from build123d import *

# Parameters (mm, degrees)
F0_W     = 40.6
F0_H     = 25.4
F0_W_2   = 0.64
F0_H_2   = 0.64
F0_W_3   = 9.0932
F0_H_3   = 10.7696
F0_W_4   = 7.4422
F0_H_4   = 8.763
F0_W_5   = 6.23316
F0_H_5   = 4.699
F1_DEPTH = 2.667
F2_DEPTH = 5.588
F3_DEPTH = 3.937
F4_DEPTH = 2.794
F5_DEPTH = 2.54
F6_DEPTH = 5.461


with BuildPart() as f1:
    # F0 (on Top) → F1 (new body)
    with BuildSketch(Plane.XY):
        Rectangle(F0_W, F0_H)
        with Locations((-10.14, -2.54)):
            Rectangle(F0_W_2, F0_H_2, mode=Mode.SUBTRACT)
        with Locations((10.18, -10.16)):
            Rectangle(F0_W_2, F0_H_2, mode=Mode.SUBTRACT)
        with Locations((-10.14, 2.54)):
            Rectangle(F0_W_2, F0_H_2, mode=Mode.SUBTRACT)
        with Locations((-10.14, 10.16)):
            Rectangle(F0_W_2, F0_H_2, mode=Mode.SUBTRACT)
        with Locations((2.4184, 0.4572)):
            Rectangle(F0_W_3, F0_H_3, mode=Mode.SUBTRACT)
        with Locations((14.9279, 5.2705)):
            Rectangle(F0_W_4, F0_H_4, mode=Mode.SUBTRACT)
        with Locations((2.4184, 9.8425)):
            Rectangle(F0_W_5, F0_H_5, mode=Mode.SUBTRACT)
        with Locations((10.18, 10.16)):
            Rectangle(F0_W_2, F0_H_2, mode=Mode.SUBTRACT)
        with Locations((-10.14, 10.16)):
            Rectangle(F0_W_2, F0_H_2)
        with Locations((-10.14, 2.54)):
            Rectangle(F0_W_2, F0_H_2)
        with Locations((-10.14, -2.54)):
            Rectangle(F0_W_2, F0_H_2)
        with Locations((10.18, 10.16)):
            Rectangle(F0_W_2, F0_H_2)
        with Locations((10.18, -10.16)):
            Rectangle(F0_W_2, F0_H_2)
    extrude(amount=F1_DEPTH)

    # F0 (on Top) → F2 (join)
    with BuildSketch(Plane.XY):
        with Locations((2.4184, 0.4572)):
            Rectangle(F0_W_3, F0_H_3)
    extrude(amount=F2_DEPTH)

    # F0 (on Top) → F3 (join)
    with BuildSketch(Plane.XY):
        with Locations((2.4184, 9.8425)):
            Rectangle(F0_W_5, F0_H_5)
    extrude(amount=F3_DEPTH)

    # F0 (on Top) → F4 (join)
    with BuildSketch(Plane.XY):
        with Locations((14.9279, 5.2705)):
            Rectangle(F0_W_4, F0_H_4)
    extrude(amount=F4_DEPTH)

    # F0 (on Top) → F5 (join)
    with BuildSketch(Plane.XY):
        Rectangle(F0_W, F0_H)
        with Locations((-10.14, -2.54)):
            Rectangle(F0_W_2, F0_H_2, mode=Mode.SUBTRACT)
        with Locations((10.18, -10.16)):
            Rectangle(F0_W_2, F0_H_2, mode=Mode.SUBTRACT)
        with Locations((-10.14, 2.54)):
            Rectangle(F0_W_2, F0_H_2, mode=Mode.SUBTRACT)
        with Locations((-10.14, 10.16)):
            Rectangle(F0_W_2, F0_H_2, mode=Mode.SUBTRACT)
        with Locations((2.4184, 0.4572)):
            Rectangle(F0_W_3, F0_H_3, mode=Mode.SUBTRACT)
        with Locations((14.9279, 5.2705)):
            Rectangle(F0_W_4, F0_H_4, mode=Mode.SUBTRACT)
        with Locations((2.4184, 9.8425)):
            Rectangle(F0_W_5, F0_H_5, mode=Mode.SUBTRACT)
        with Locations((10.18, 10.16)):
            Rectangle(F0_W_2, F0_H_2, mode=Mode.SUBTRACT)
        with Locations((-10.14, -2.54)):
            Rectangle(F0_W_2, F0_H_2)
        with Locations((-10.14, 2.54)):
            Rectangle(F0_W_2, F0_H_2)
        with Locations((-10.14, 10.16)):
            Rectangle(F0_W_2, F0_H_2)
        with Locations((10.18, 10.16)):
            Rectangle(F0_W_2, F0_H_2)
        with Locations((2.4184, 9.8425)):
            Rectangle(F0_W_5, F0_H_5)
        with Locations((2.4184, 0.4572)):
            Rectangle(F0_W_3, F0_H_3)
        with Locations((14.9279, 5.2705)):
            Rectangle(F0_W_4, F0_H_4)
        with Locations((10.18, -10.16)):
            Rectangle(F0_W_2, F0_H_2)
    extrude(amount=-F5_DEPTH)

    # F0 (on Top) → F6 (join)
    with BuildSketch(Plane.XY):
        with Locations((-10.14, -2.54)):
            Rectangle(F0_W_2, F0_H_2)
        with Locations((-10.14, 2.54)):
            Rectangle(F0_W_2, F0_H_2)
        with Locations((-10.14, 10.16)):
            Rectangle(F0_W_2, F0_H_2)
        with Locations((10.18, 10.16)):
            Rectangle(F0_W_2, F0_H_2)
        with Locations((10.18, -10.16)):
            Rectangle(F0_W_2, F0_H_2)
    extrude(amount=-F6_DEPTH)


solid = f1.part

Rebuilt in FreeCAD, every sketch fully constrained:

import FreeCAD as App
import Part
import Sketcher

V = App.Vector
Q = App.Units.Quantity

doc = App.newDocument("Part")
body = doc.addObject("PartDesign::Body", "Body")

sketch1 = doc.addObject("Sketcher::SketchObject", "Sketch")
body.addObject(sketch1)
sketch1.AttachmentSupport = (doc.XY_Plane, [""])
sketch1.MapMode = "FlatFace"
sketch1.addGeometry(Part.LineSegment(V(-20.3, 12.7, 0), V(-20.3, -12.7, 0)), False)
sketch1.addGeometry(Part.LineSegment(V(-20.3, -12.7, 0), V(20.3, -12.7, 0)), False)
sketch1.addGeometry(Part.LineSegment(V(20.3, -12.7, 0), V(20.3, 12.7, 0)), False)
sketch1.addGeometry(Part.LineSegment(V(20.3, 12.7, 0), V(-20.3, 12.7, 0)), False)
sketch1.addGeometry(Part.LineSegment(V(6.965, -4.9276, 0), V(-2.1282, -4.9276, 0)), False)
sketch1.addGeometry(Part.LineSegment(V(-2.1282, -4.9276, 0), V(-2.1282, 5.842, 0)), False)
sketch1.addGeometry(Part.LineSegment(V(-2.1282, 5.842, 0), V(6.965, 5.842, 0)), False)
sketch1.addGeometry(Part.LineSegment(V(6.965, 5.842, 0), V(6.965, -4.9276, 0)), False)
sketch1.addGeometry(Part.LineSegment(V(5.53498, 7.493, 0), V(-0.69818, 7.493, 0)), False)
sketch1.addGeometry(Part.LineSegment(V(-0.69818, 7.493, 0), V(-0.69818, 12.192, 0)), False)
sketch1.addGeometry(Part.LineSegment(V(-0.69818, 12.192, 0), V(5.53498, 12.192, 0)), False)
sketch1.addGeometry(Part.LineSegment(V(5.53498, 12.192, 0), V(5.53498, 7.493, 0)), False)
sketch1.addGeometry(Part.LineSegment(V(18.649, 0.889, 0), V(11.2068, 0.889, 0)), False)
sketch1.addGeometry(Part.LineSegment(V(11.2068, 0.889, 0), V(11.2068, 9.652, 0)), False)
sketch1.addGeometry(Part.LineSegment(V(11.2068, 9.652, 0), V(18.649, 9.652, 0)), False)
sketch1.addGeometry(Part.LineSegment(V(18.649, 9.652, 0), V(18.649, 0.889, 0)), False)
sketch1.addConstraint(Sketcher.Constraint("Coincident", 0, 2, 1, 1))
sketch1.addConstraint(Sketcher.Constraint("Coincident", 1, 2, 2, 1))
sketch1.addConstraint(Sketcher.Constraint("Coincident", 2, 2, 3, 1))
sketch1.addConstraint(Sketcher.Constraint("Coincident", 3, 2, 0, 1))
sketch1.addConstraint(Sketcher.Constraint("Coincident", 4, 2, 5, 1))
sketch1.addConstraint(Sketcher.Constraint("Coincident", 5, 2, 6, 1))
sketch1.addConstraint(Sketcher.Constraint("Coincident", 6, 2, 7, 1))
sketch1.addConstraint(Sketcher.Constraint("Coincident", 7, 2, 4, 1))
sketch1.addConstraint(Sketcher.Constraint("Coincident", 8, 2, 9, 1))
sketch1.addConstraint(Sketcher.Constraint("Coincident", 9, 2, 10, 1))
sketch1.addConstraint(Sketcher.Constraint("Coincident", 10, 2, 11, 1))
sketch1.addConstraint(Sketcher.Constraint("Coincident", 11, 2, 8, 1))
sketch1.addConstraint(Sketcher.Constraint("Coincident", 12, 2, 13, 1))
sketch1.addConstraint(Sketcher.Constraint("Coincident", 13, 2, 14, 1))
sketch1.addConstraint(Sketcher.Constraint("Coincident", 14, 2, 15, 1))
sketch1.addConstraint(Sketcher.Constraint("Coincident", 15, 2, 12, 1))
sketch1.addConstraint(Sketcher.Constraint("Vertical", 0))
sketch1.addConstraint(Sketcher.Constraint("Horizontal", 1))
sketch1.addConstraint(Sketcher.Constraint("Vertical", 2))
sketch1.addConstraint(Sketcher.Constraint("Horizontal", 3))
sketch1.addConstraint(Sketcher.Constraint("Horizontal", 4))
sketch1.addConstraint(Sketcher.Constraint("Vertical", 5))
sketch1.addConstraint(Sketcher.Constraint("Horizontal", 6))
sketch1.addConstraint(Sketcher.Constraint("Vertical", 7))
sketch1.addConstraint(Sketcher.Constraint("Horizontal", 8))
sketch1.addConstraint(Sketcher.Constraint("Vertical", 9))
sketch1.addConstraint(Sketcher.Constraint("Horizontal", 10))
sketch1.addConstraint(Sketcher.Constraint("Vertical", 11))
sketch1.addConstraint(Sketcher.Constraint("Horizontal", 12))
sketch1.addConstraint(Sketcher.Constraint("Vertical", 13))
sketch1.addConstraint(Sketcher.Constraint("Horizontal", 14))
sketch1.addConstraint(Sketcher.Constraint("Vertical", 15))
sketch1.addConstraint(Sketcher.Constraint("Symmetric", 0, 2, 2, 2, -1, 1))
sketch1.addConstraint(Sketcher.Constraint("DistanceY", 0, 2, 0, 1, Q("1 in")))
sketch1.addConstraint(Sketcher.Constraint("DistanceY", 13, 2, 10, 2, Q("0.1 in")))
sketch1.addConstraint(Sketcher.Constraint("DistanceX", 4, 2, 4, 1, Q("0.358 in")))
sketch1.addConstraint(Sketcher.Constraint("DistanceX", 12, 2, 12, 1, Q("0.293 in")))
sketch1.addConstraint(Sketcher.Constraint("DistanceY", 5, 1, 5, 2, Q("0.424 in")))
sketch1.addConstraint(Sketcher.Constraint("DistanceY", 9, 1, 9, 2, Q("0.185 in")))
sketch1.addConstraint(Sketcher.Constraint("DistanceY", 13, 1, 13, 2, Q("0.345 in")))
sketch1.addConstraint(Sketcher.Constraint("DistanceY", -1, 1, 5, 2, Q("0.23 in")))
sketch1.addConstraint(Sketcher.Constraint("DistanceY", -1, 1, 9, 2, Q("0.48 in")))
sketch1.addConstraint(Sketcher.Constraint("DistanceX", 6, 2, 14, 2, Q("0.46 in")))
sketch1.addConstraint(Sketcher.Constraint("DistanceX", 8, 2, 8, 1, Q("0.2454 in")))
sketch1.addConstraint(Sketcher.Constraint("DistanceX", 4, 2, 1, 2, Q("0.883 in")))
sketch1.addConstraint(Sketcher.Constraint("DistanceX", 1, 1, 1, 2, Q("40.6 mm")))
sketch1.addConstraint(Sketcher.Constraint("DistanceX", 5, 2, 8, 2, Q("0.0563 in")))
pad1 = doc.addObject("PartDesign::Pad", "Pad")
body.addObject(pad1)
pad1.Profile = sketch1
pad1.Length = Q("0.105 in")

sketch2 = doc.addObject("Sketcher::SketchObject", "Sketch001")
body.addObject(sketch2)
sketch2.AttachmentSupport = (doc.XY_Plane, [""])
sketch2.MapMode = "FlatFace"
sketch2.addGeometry(Part.LineSegment(V(-2.1282, 5.842, 0), V(-2.1282, -4.9276, 0)), False)
sketch2.addGeometry(Part.LineSegment(V(-2.1282, -4.9276, 0), V(6.965, -4.9276, 0)), False)
sketch2.addGeometry(Part.LineSegment(V(6.965, -4.9276, 0), V(6.965, 5.842, 0)), False)
sketch2.addGeometry(Part.LineSegment(V(6.965, 5.842, 0), V(-2.1282, 5.842, 0)), False)
sketch2.addConstraint(Sketcher.Constraint("Coincident", 0, 2, 1, 1))
sketch2.addConstraint(Sketcher.Constraint("Coincident", 1, 2, 2, 1))
sketch2.addConstraint(Sketcher.Constraint("Coincident", 2, 2, 3, 1))
sketch2.addConstraint(Sketcher.Constraint("Coincident", 3, 2, 0, 1))
sketch2.addConstraint(Sketcher.Constraint("Vertical", 0))
sketch2.addConstraint(Sketcher.Constraint("Horizontal", 1))
sketch2.addConstraint(Sketcher.Constraint("Vertical", 2))
sketch2.addConstraint(Sketcher.Constraint("Horizontal", 3))
sketch2.addConstraint(Sketcher.Constraint("DistanceX", 1, 1, 1, 2, Q("0.358 in")))
sketch2.addConstraint(Sketcher.Constraint("DistanceY", 0, 2, 0, 1, Q("0.424 in")))
sketch2.addConstraint(Sketcher.Constraint("DistanceY", -1, 1, 2, 2, Q("0.23 in")))
sketch2.addConstraint(Sketcher.Constraint("DistanceX", 0, 2, -1, 1, Q("2.1282 mm")))
pad2 = doc.addObject("PartDesign::Pad", "Pad001")
body.addObject(pad2)
pad2.Profile = sketch2
pad2.Length = Q("0.22 in")

sketch3 = doc.addObject("Sketcher::SketchObject", "Sketch002")
body.addObject(sketch3)
sketch3.AttachmentSupport = (doc.XY_Plane, [""])
sketch3.MapMode = "FlatFace"
sketch3.addGeometry(Part.LineSegment(V(-0.69818, 12.192, 0), V(-0.69818, 7.493, 0)), False)
sketch3.addGeometry(Part.LineSegment(V(-0.69818, 7.493, 0), V(5.53498, 7.493, 0)), False)
sketch3.addGeometry(Part.LineSegment(V(5.53498, 7.493, 0), V(5.53498, 12.192, 0)), False)
sketch3.addGeometry(Part.LineSegment(V(5.53498, 12.192, 0), V(-0.69818, 12.192, 0)), False)
sketch3.addConstraint(Sketcher.Constraint("Coincident", 0, 2, 1, 1))
sketch3.addConstraint(Sketcher.Constraint("Coincident", 1, 2, 2, 1))
sketch3.addConstraint(Sketcher.Constraint("Coincident", 2, 2, 3, 1))
sketch3.addConstraint(Sketcher.Constraint("Coincident", 3, 2, 0, 1))
sketch3.addConstraint(Sketcher.Constraint("Vertical", 0))
sketch3.addConstraint(Sketcher.Constraint("Horizontal", 1))
sketch3.addConstraint(Sketcher.Constraint("Vertical", 2))
sketch3.addConstraint(Sketcher.Constraint("Horizontal", 3))
sketch3.addConstraint(Sketcher.Constraint("DistanceY", 0, 2, 0, 1, Q("0.185 in")))
sketch3.addConstraint(Sketcher.Constraint("DistanceY", -1, 1, 2, 2, Q("0.48 in")))
sketch3.addConstraint(Sketcher.Constraint("DistanceX", 1, 1, 1, 2, Q("0.2454 in")))
sketch3.addConstraint(Sketcher.Constraint("DistanceX", 0, 2, -1, 1, Q("0.69818 mm")))
pad3 = doc.addObject("PartDesign::Pad", "Pad002")
body.addObject(pad3)
pad3.Profile = sketch3
pad3.Length = Q("0.155 in")

sketch4 = doc.addObject("Sketcher::SketchObject", "Sketch003")
body.addObject(sketch4)
sketch4.AttachmentSupport = (doc.XY_Plane, [""])
sketch4.MapMode = "FlatFace"
sketch4.addGeometry(Part.LineSegment(V(11.2068, 9.652, 0), V(11.2068, 0.889, 0)), False)
sketch4.addGeometry(Part.LineSegment(V(11.2068, 0.889, 0), V(18.649, 0.889, 0)), False)
sketch4.addGeometry(Part.LineSegment(V(18.649, 0.889, 0), V(18.649, 9.652, 0)), False)
sketch4.addGeometry(Part.LineSegment(V(18.649, 9.652, 0), V(11.2068, 9.652, 0)), False)
sketch4.addConstraint(Sketcher.Constraint("Coincident", 0, 2, 1, 1))
sketch4.addConstraint(Sketcher.Constraint("Coincident", 1, 2, 2, 1))
sketch4.addConstraint(Sketcher.Constraint("Coincident", 2, 2, 3, 1))
sketch4.addConstraint(Sketcher.Constraint("Coincident", 3, 2, 0, 1))
sketch4.addConstraint(Sketcher.Constraint("Vertical", 0))
sketch4.addConstraint(Sketcher.Constraint("Horizontal", 1))
sketch4.addConstraint(Sketcher.Constraint("Vertical", 2))
sketch4.addConstraint(Sketcher.Constraint("Horizontal", 3))
sketch4.addConstraint(Sketcher.Constraint("DistanceX", 1, 1, 1, 2, Q("0.293 in")))
sketch4.addConstraint(Sketcher.Constraint("DistanceY", 0, 2, 0, 1, Q("0.345 in")))
sketch4.addConstraint(Sketcher.Constraint("DistanceY", -1, 1, 2, 2, Q("0.38 in")))
sketch4.addConstraint(Sketcher.Constraint("DistanceX", -1, 1, 0, 2, Q("11.2068 mm")))
pad4 = doc.addObject("PartDesign::Pad", "Pad003")
body.addObject(pad4)
pad4.Profile = sketch4
pad4.Length = Q("0.11 in")

sketch5 = doc.addObject("Sketcher::SketchObject", "Sketch004")
body.addObject(sketch5)
sketch5.AttachmentSupport = (doc.XY_Plane, [""])
sketch5.MapMode = "FlatFace"
sketch5.addGeometry(Part.LineSegment(V(-20.3, 12.7, 0), V(-20.3, -12.7, 0)), False)
sketch5.addGeometry(Part.LineSegment(V(-20.3, -12.7, 0), V(20.3, -12.7, 0)), False)
sketch5.addGeometry(Part.LineSegment(V(20.3, -12.7, 0), V(20.3, 12.7, 0)), False)
sketch5.addGeometry(Part.LineSegment(V(20.3, 12.7, 0), V(-20.3, 12.7, 0)), False)
sketch5.addConstraint(Sketcher.Constraint("Coincident", 0, 2, 1, 1))
sketch5.addConstraint(Sketcher.Constraint("Coincident", 1, 2, 2, 1))
sketch5.addConstraint(Sketcher.Constraint("Coincident", 2, 2, 3, 1))
sketch5.addConstraint(Sketcher.Constraint("Coincident", 3, 2, 0, 1))
sketch5.addConstraint(Sketcher.Constraint("Vertical", 0))
sketch5.addConstraint(Sketcher.Constraint("Horizontal", 1))
sketch5.addConstraint(Sketcher.Constraint("Vertical", 2))
sketch5.addConstraint(Sketcher.Constraint("Horizontal", 3))
sketch5.addConstraint(Sketcher.Constraint("Symmetric", 0, 2, 2, 2, -1, 1))
sketch5.addConstraint(Sketcher.Constraint("DistanceY", 0, 2, 0, 1, Q("1 in")))
sketch5.addConstraint(Sketcher.Constraint("DistanceX", 1, 1, 1, 2, Q("40.6 mm")))
pad5 = doc.addObject("PartDesign::Pad", "Pad004")
body.addObject(pad5)
pad5.Profile = sketch5
pad5.Length = Q("0.1 in")
pad5.Reversed = True

sketch6 = doc.addObject("Sketcher::SketchObject", "Sketch005")
body.addObject(sketch6)
sketch6.AttachmentSupport = (doc.XY_Plane, [""])
sketch6.MapMode = "FlatFace"
sketch6.addGeometry(Part.LineSegment(V(-10.46, -2.22, 0), V(-10.46, -2.86, 0)), False)
sketch6.addGeometry(Part.LineSegment(V(-10.46, -2.86, 0), V(-9.82, -2.86, 0)), False)
sketch6.addGeometry(Part.LineSegment(V(-9.82, -2.86, 0), V(-9.82, -2.22, 0)), False)
sketch6.addGeometry(Part.LineSegment(V(-9.82, -2.22, 0), V(-10.46, -2.22, 0)), False)
sketch6.addGeometry(Part.LineSegment(V(-10.46, 2.86, 0), V(-10.46, 2.22, 0)), False)
sketch6.addGeometry(Part.LineSegment(V(-10.46, 2.22, 0), V(-9.82, 2.22, 0)), False)
sketch6.addGeometry(Part.LineSegment(V(-9.82, 2.22, 0), V(-9.82, 2.86, 0)), False)
sketch6.addGeometry(Part.LineSegment(V(-9.82, 2.86, 0), V(-10.46, 2.86, 0)), False)
sketch6.addGeometry(Part.LineSegment(V(-10.46, 10.48, 0), V(-10.46, 9.84, 0)), False)
sketch6.addGeometry(Part.LineSegment(V(-10.46, 9.84, 0), V(-9.82, 9.84, 0)), False)
sketch6.addGeometry(Part.LineSegment(V(-9.82, 9.84, 0), V(-9.82, 10.48, 0)), False)
sketch6.addGeometry(Part.LineSegment(V(-9.82, 10.48, 0), V(-10.46, 10.48, 0)), False)
sketch6.addGeometry(Part.LineSegment(V(9.86, 10.48, 0), V(9.86, 9.84, 0)), False)
sketch6.addGeometry(Part.LineSegment(V(9.86, 9.84, 0), V(10.5, 9.84, 0)), False)
sketch6.addGeometry(Part.LineSegment(V(10.5, 9.84, 0), V(10.5, 10.48, 0)), False)
sketch6.addGeometry(Part.LineSegment(V(10.5, 10.48, 0), V(9.86, 10.48, 0)), False)
sketch6.addGeometry(Part.LineSegment(V(9.86, -9.84, 0), V(9.86, -10.48, 0)), False)
sketch6.addGeometry(Part.LineSegment(V(9.86, -10.48, 0), V(10.5, -10.48, 0)), False)
sketch6.addGeometry(Part.LineSegment(V(10.5, -10.48, 0), V(10.5, -9.84, 0)), False)
sketch6.addGeometry(Part.LineSegment(V(10.5, -9.84, 0), V(9.86, -9.84, 0)), False)
sketch6.addConstraint(Sketcher.Constraint("Coincident", 0, 2, 1, 1))
sketch6.addConstraint(Sketcher.Constraint("Coincident", 1, 2, 2, 1))
sketch6.addConstraint(Sketcher.Constraint("Coincident", 2, 2, 3, 1))
sketch6.addConstraint(Sketcher.Constraint("Coincident", 3, 2, 0, 1))
sketch6.addConstraint(Sketcher.Constraint("Coincident", 4, 2, 5, 1))
sketch6.addConstraint(Sketcher.Constraint("Coincident", 5, 2, 6, 1))
sketch6.addConstraint(Sketcher.Constraint("Coincident", 6, 2, 7, 1))
sketch6.addConstraint(Sketcher.Constraint("Coincident", 7, 2, 4, 1))
sketch6.addConstraint(Sketcher.Constraint("Coincident", 8, 2, 9, 1))
sketch6.addConstraint(Sketcher.Constraint("Coincident", 9, 2, 10, 1))
sketch6.addConstraint(Sketcher.Constraint("Coincident", 10, 2, 11, 1))
sketch6.addConstraint(Sketcher.Constraint("Coincident", 11, 2, 8, 1))
sketch6.addConstraint(Sketcher.Constraint("Coincident", 12, 2, 13, 1))
sketch6.addConstraint(Sketcher.Constraint("Coincident", 13, 2, 14, 1))
sketch6.addConstraint(Sketcher.Constraint("Coincident", 14, 2, 15, 1))
sketch6.addConstraint(Sketcher.Constraint("Coincident", 15, 2, 12, 1))
sketch6.addConstraint(Sketcher.Constraint("Coincident", 16, 2, 17, 1))
sketch6.addConstraint(Sketcher.Constraint("Coincident", 17, 2, 18, 1))
sketch6.addConstraint(Sketcher.Constraint("Coincident", 18, 2, 19, 1))
sketch6.addConstraint(Sketcher.Constraint("Coincident", 19, 2, 16, 1))
sketch6.addConstraint(Sketcher.Constraint("Vertical", 0))
sketch6.addConstraint(Sketcher.Constraint("Horizontal", 1))
sketch6.addConstraint(Sketcher.Constraint("Vertical", 2))
sketch6.addConstraint(Sketcher.Constraint("Horizontal", 3))
sketch6.addConstraint(Sketcher.Constraint("Vertical", 4))
sketch6.addConstraint(Sketcher.Constraint("Horizontal", 5))
sketch6.addConstraint(Sketcher.Constraint("Vertical", 6))
sketch6.addConstraint(Sketcher.Constraint("Horizontal", 7))
sketch6.addConstraint(Sketcher.Constraint("Vertical", 8))
sketch6.addConstraint(Sketcher.Constraint("Horizontal", 9))
sketch6.addConstraint(Sketcher.Constraint("Vertical", 10))
sketch6.addConstraint(Sketcher.Constraint("Horizontal", 11))
sketch6.addConstraint(Sketcher.Constraint("Vertical", 12))
sketch6.addConstraint(Sketcher.Constraint("Horizontal", 13))
sketch6.addConstraint(Sketcher.Constraint("Vertical", 14))
sketch6.addConstraint(Sketcher.Constraint("Horizontal", 15))
sketch6.addConstraint(Sketcher.Constraint("Vertical", 16))
sketch6.addConstraint(Sketcher.Constraint("Horizontal", 17))
sketch6.addConstraint(Sketcher.Constraint("Vertical", 18))
sketch6.addConstraint(Sketcher.Constraint("Horizontal", 19))
sketch6.addConstraint(Sketcher.Constraint("Symmetric", 3, 2, 4, 2, -1))
sketch6.addConstraint(Sketcher.Constraint("Symmetric", 1, 2, 6, 2, -1))
sketch6.addConstraint(Sketcher.Constraint("Symmetric", 15, 2, 16, 2, -1))
sketch6.addConstraint(Sketcher.Constraint("Symmetric", 13, 2, 18, 2, -1))
sketch6.addConstraint(Sketcher.Constraint("Horizontal", 9, 2, 12, 2))
sketch6.addConstraint(Sketcher.Constraint("Horizontal", 11, 2, 14, 2))
sketch6.addConstraint(Sketcher.Constraint("Vertical", 7, 2, 8, 2))
sketch6.addConstraint(Sketcher.Constraint("Vertical", 6, 2, 9, 2))
sketch6.addConstraint(Sketcher.Constraint("Equal", 11, 13))
sketch6.addConstraint(Sketcher.Constraint("Equal", 19, 0))
sketch6.addConstraint(Sketcher.Constraint("Equal", 6, 8))
sketch6.addConstraint(Sketcher.Constraint("DistanceY", 0, 2, 4, 2, Q("0.2 in")))
sketch6.addConstraint(Sketcher.Constraint("DistanceY", 4, 2, 8, 2, Q("0.3 in")))
sketch6.addConstraint(Sketcher.Constraint("DistanceX", 8, 2, 12, 2, Q("0.8 in")))
sketch6.addConstraint(Sketcher.Constraint("DistanceX", 1, 1, 1, 2, Q("0.64 mm")))
sketch6.addConstraint(Sketcher.Constraint("DistanceX", 0, 2, -1, 1, Q("10.46 mm")))
pad6 = doc.addObject("PartDesign::Pad", "Pad005")
body.addObject(pad6)
pad6.Profile = sketch6
pad6.Length = Q("0.215 in")
pad6.Reversed = True

doc.recompute()
